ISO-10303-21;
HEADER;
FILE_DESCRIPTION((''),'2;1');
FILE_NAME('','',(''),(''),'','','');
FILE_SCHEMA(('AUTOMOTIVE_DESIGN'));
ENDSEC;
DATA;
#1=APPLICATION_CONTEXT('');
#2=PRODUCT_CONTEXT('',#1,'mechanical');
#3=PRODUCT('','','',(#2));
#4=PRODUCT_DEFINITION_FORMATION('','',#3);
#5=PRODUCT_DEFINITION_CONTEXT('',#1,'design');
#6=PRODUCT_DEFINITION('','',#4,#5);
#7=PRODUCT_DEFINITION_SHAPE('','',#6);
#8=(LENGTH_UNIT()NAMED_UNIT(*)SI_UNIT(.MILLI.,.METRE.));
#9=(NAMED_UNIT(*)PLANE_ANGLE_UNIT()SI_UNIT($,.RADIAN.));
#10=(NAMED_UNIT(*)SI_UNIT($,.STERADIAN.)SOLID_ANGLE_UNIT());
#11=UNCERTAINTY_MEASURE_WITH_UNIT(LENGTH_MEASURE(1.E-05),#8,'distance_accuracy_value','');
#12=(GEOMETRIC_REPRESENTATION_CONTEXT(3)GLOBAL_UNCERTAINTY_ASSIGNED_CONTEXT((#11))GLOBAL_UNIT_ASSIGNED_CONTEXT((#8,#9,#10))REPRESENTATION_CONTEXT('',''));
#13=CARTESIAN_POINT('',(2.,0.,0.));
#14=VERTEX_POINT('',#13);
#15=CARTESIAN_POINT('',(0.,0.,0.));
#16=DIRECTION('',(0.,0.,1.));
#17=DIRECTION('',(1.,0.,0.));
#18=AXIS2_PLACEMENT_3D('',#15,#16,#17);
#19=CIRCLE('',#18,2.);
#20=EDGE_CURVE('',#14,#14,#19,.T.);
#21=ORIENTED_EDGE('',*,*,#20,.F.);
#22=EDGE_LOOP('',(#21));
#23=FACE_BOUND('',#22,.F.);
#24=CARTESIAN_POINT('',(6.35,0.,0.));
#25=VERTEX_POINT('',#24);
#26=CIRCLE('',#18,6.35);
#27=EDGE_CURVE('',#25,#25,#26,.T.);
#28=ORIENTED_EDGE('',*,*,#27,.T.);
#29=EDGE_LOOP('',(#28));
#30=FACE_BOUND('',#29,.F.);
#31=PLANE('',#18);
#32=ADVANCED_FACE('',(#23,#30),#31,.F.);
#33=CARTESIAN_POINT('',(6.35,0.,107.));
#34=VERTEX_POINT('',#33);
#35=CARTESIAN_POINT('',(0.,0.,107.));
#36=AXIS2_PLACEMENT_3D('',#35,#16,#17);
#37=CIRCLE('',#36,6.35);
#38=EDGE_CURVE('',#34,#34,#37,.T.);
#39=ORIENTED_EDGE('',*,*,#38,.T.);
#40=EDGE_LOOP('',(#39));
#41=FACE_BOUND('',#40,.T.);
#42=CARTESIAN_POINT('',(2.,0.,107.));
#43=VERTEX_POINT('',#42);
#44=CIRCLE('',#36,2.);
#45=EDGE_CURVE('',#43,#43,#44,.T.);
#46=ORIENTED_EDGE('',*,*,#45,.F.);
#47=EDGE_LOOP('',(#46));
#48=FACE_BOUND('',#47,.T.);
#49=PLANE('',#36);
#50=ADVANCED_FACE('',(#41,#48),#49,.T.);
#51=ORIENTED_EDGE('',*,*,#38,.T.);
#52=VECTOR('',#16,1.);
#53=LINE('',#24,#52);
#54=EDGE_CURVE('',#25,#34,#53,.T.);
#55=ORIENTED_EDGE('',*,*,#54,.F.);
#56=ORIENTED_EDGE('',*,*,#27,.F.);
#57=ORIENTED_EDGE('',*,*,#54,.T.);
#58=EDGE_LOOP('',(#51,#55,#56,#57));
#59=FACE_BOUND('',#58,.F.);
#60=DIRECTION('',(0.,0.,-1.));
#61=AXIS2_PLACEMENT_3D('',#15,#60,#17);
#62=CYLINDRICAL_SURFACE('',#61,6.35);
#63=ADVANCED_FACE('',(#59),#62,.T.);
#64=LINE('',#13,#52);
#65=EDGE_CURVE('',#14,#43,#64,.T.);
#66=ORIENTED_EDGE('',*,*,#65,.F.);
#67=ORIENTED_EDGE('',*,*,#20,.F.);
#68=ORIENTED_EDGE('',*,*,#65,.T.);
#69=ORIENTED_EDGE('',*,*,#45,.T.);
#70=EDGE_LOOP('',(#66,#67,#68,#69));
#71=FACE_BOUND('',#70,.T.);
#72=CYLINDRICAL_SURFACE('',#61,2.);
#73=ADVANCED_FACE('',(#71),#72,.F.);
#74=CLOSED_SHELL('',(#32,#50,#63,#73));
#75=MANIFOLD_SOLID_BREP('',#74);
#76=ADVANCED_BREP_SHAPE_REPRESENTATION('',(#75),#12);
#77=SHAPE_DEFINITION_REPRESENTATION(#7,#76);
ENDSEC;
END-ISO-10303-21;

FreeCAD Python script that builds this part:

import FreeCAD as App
import Part
import Sketcher

V = App.Vector

doc = App.newDocument("Part")
body = doc.addObject("PartDesign::Body", "Body")

sketch1 = body.newObject("Sketcher::SketchObject", "Sketch")
sketch1.AttachmentSupport = (doc.getObject("XY_Plane"), [""])
sketch1.MapMode = "FlatFace"
sketch1.addGeometry(Part.Circle(V(0, 0, 0), V(0, 0, 1), 6.3), False)
sketch1.addGeometry(Part.Circle(V(0, 0, 0), V(0, 0, 1), 2), False)
sketch1.addConstraint(Sketcher.Constraint("Coincident", 0, 3, -1, 1))
sketch1.addConstraint(Sketcher.Constraint("Coincident", 1, 3, -1, 1))
sketch1.addConstraint(Sketcher.Constraint("Diameter", 1, 4.0))
sketch1.addConstraint(Sketcher.Constraint("Diameter", 0, 12.7))
pad1 = body.newObject("PartDesign::Pad", "Pad")
pad1.Profile = sketch1
pad1.Length = 107

doc.recompute()
